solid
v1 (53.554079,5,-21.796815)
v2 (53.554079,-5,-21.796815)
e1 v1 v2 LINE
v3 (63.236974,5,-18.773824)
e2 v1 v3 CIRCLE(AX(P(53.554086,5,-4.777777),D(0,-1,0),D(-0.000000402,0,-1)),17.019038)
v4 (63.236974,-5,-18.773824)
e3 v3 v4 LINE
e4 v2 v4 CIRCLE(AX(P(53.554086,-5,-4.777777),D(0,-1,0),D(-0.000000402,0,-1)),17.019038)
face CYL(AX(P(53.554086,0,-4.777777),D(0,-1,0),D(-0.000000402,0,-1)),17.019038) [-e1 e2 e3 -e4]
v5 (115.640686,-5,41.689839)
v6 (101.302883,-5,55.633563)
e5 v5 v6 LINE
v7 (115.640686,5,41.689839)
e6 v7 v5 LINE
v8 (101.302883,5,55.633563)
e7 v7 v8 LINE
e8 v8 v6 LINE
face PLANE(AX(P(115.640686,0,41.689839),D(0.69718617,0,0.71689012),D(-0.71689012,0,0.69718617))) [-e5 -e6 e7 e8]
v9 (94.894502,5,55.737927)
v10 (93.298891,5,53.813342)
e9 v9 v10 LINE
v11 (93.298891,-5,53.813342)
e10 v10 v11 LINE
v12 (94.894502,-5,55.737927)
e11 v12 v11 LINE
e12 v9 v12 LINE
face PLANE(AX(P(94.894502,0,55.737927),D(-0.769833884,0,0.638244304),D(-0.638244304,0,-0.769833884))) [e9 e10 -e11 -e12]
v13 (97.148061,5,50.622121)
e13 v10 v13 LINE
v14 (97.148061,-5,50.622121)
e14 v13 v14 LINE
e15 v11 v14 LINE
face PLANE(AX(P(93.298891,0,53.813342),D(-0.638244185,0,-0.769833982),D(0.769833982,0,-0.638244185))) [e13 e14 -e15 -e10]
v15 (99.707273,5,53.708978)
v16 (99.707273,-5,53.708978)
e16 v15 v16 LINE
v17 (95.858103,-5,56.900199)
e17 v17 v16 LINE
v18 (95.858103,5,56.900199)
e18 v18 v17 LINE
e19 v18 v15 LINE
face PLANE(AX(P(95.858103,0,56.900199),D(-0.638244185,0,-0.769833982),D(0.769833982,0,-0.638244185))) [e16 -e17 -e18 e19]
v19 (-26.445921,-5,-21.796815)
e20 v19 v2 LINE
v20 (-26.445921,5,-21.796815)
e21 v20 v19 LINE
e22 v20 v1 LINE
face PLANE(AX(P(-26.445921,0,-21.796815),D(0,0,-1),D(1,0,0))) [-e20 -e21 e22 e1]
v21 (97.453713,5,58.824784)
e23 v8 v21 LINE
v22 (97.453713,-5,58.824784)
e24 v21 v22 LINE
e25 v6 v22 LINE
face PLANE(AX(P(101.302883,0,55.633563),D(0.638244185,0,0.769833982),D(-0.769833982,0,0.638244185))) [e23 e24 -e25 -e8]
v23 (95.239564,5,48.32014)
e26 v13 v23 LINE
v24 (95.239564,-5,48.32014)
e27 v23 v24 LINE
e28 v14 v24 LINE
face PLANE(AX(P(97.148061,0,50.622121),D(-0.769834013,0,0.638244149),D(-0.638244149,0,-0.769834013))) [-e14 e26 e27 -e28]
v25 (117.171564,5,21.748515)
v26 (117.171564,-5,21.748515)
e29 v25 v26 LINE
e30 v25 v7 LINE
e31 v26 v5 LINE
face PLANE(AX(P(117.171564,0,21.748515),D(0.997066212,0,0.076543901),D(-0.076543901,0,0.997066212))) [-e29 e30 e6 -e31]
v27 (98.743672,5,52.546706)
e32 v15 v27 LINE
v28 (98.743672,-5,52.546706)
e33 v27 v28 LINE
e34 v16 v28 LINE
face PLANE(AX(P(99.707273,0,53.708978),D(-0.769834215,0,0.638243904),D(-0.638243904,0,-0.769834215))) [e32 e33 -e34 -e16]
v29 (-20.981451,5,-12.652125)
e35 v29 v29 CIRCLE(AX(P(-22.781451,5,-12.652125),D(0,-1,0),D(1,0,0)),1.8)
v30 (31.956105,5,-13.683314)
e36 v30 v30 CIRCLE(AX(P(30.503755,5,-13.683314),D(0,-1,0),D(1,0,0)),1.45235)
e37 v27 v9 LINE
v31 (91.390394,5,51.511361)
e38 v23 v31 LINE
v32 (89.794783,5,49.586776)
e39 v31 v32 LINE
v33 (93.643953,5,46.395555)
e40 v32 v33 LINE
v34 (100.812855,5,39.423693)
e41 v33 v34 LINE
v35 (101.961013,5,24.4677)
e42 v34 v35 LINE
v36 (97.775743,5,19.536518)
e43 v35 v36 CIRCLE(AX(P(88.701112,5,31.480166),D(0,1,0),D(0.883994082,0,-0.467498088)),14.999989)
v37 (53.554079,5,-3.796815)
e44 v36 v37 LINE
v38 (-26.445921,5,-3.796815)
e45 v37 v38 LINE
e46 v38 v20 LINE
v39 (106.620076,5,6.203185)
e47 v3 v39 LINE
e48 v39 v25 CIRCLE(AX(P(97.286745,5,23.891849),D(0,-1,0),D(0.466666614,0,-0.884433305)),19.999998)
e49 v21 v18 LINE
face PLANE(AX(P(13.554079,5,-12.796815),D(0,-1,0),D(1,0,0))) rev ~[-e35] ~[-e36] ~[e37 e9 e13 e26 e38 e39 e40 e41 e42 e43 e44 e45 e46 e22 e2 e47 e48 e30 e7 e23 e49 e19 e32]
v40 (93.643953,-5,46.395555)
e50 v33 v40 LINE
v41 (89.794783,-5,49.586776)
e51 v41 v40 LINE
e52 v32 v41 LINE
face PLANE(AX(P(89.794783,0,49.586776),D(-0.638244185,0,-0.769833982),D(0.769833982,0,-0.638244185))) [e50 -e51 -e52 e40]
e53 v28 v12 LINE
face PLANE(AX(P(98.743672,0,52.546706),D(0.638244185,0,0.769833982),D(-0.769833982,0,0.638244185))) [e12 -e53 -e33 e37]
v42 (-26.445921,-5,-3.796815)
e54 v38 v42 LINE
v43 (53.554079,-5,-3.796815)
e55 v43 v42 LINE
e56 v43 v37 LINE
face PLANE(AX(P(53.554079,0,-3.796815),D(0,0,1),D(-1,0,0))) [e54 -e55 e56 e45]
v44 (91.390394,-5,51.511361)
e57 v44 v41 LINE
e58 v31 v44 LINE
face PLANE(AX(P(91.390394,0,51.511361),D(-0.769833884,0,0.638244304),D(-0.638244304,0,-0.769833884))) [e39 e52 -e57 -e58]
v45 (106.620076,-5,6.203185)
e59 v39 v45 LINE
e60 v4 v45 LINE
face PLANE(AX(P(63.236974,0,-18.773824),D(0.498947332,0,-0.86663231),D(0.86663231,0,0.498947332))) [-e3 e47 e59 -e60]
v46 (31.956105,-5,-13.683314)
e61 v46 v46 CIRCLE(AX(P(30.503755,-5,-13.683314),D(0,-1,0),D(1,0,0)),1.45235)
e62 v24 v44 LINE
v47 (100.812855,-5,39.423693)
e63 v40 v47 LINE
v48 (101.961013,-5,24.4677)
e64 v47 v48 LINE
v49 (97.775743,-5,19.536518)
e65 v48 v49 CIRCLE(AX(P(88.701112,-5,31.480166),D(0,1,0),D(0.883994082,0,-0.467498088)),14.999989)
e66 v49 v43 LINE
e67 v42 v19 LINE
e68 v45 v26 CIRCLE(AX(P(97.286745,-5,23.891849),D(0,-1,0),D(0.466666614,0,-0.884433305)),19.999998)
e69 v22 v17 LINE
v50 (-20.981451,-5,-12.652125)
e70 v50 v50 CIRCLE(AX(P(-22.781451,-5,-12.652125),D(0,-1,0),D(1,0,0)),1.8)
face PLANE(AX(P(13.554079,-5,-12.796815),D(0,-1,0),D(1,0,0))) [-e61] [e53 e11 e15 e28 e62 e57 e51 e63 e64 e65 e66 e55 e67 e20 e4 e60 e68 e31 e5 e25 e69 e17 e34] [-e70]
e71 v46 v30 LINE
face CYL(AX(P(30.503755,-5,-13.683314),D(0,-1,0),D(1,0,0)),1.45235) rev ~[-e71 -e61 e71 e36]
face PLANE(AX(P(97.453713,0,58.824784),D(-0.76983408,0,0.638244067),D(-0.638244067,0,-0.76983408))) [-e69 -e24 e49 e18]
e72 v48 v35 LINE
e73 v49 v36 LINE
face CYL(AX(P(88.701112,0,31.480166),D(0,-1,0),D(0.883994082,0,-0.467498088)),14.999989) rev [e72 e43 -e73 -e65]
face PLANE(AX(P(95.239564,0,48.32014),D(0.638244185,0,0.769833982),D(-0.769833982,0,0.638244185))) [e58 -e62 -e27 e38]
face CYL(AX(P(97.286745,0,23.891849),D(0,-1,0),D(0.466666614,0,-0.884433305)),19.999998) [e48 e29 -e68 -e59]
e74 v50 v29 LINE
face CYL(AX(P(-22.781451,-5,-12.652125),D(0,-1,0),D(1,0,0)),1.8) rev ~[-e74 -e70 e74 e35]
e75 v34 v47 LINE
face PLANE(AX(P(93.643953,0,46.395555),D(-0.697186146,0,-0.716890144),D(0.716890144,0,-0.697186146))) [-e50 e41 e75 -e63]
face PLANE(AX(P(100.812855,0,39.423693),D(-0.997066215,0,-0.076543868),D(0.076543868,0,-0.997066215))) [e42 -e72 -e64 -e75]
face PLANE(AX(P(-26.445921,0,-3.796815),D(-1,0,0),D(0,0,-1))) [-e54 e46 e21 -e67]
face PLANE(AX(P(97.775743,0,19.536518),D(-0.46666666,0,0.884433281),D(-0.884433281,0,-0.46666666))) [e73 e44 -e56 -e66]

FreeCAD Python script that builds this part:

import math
import FreeCAD as App
import Part
import Sketcher
from FreeCAD import Vector
Q = App.Units.Quantity

doc = App.newDocument("Part")
body = doc.addObject("PartDesign::Body", "Body")

# Sketch on XZ plane
sketch1 = body.newObject("Sketcher::SketchObject", "Sketch")
sketch1.AttachmentSupport = (doc.getObject("XZ_Plane"), [""])
sketch1.MapMode = "FlatFace"
sketch1.addGeometry(Part.LineSegment(Vector(53.554079, -3.796815, 0), Vector(-26.445921, -3.796815, 0)), False)
sketch1.addGeometry(Part.LineSegment(Vector(-26.445921, -3.796815, 0), Vector(-26.445921, -21.796815, 0)), False)
sketch1.addGeometry(Part.LineSegment(Vector(-26.445921, -21.796815, 0), Vector(53.554079, -21.796815, 0)), False)
sketch1.addGeometry(Part.ArcOfCircle(Part.Circle(Vector(53.554086, -4.777777, 0), Vector(0, 0, 1), 17.019038), math.radians(-90.000023), math.radians(-55.323344)), False)
sketch1.addGeometry(Part.LineSegment(Vector(63.236974, -18.773824, 0), Vector(106.620076, 6.203185, 0)), False)
sketch1.addGeometry(Part.ArcOfCircle(Part.Circle(Vector(97.286745, 23.891849, 0), Vector(0, 0, 1), 19.999998), math.radians(-62.181864), math.radians(-6.152016)), False)
sketch1.addGeometry(Part.LineSegment(Vector(117.171564, 21.748515, 0), Vector(115.640686, 41.689839, 0)), False)
sketch1.addGeometry(Part.LineSegment(Vector(115.640686, 41.689839, 0), Vector(101.302883, 55.633563, 0)), False)
sketch1.addGeometry(Part.LineSegment(Vector(101.302883, 55.633563, 0), Vector(97.453713, 58.824784, 0)), False)
sketch1.addGeometry(Part.LineSegment(Vector(97.453713, 58.824784, 0), Vector(95.858103, 56.900199, 0)), False)
sketch1.addGeometry(Part.LineSegment(Vector(95.858103, 56.900199, 0), Vector(99.707273, 53.708978, 0)), False)
sketch1.addGeometry(Part.LineSegment(Vector(99.707273, 53.708978, 0), Vector(98.743672, 52.546706, 0)), False)
sketch1.addGeometry(Part.LineSegment(Vector(98.743672, 52.546706, 0), Vector(94.894502, 55.737927, 0)), False)
sketch1.addGeometry(Part.LineSegment(Vector(94.894502, 55.737927, 0), Vector(93.298891, 53.813342, 0)), False)
sketch1.addGeometry(Part.LineSegment(Vector(93.298891, 53.813342, 0), Vector(97.148061, 50.622121, 0)), False)
sketch1.addGeometry(Part.LineSegment(Vector(97.148061, 50.622121, 0), Vector(95.239564, 48.32014, 0)), False)
sketch1.addGeometry(Part.LineSegment(Vector(95.239564, 48.32014, 0), Vector(91.390394, 51.511361, 0)), False)
sketch1.addGeometry(Part.LineSegment(Vector(91.390394, 51.511361, 0), Vector(89.794783, 49.586776, 0)), False)
sketch1.addGeometry(Part.LineSegment(Vector(89.794783, 49.586776, 0), Vector(93.643953, 46.395555, 0)), False)
sketch1.addGeometry(Part.LineSegment(Vector(93.643953, 46.395555, 0), Vector(100.812855, 39.423693, 0)), False)
sketch1.addGeometry(Part.LineSegment(Vector(100.812855, 39.423693, 0), Vector(101.961013, 24.4677, 0)), False)
sketch1.addGeometry(Part.ArcOfCircle(Part.Circle(Vector(88.701112, 31.480166, 0), Vector(0, 0, 1), 14.999989), math.radians(-52.772894), math.radians(-27.872014)), False)
sketch1.addGeometry(Part.LineSegment(Vector(97.775743, 19.536518, 0), Vector(53.554079, -3.796815, 0)), False)
sketch1.addConstraint(Sketcher.Constraint("Coincident", 0, 2, 1, 1))
sketch1.addConstraint(Sketcher.Constraint("Coincident", 1, 2, 2, 1))
sketch1.addConstraint(Sketcher.Constraint("Coincident", 2, 2, 3, 1))
sketch1.addConstraint(Sketcher.Constraint("Coincident", 3, 2, 4, 1))
sketch1.addConstraint(Sketcher.Constraint("Coincident", 4, 2, 5, 1))
sketch1.addConstraint(Sketcher.Constraint("Coincident", 5, 2, 6, 1))
sketch1.addConstraint(Sketcher.Constraint("Coincident", 6, 2, 7, 1))
sketch1.addConstraint(Sketcher.Constraint("Coincident", 7, 2, 8, 1))
sketch1.addConstraint(Sketcher.Constraint("Coincident", 8, 2, 9, 1))
sketch1.addConstraint(Sketcher.Constraint("Coincident", 9, 2, 10, 1))
sketch1.addConstraint(Sketcher.Constraint("Coincident", 10, 2, 11, 1))
sketch1.addConstraint(Sketcher.Constraint("Coincident", 11, 2, 12, 1))
sketch1.addConstraint(Sketcher.Constraint("Coincident", 12, 2, 13, 1))
sketch1.addConstraint(Sketcher.Constraint("Coincident", 13, 2, 14, 1))
sketch1.addConstraint(Sketcher.Constraint("Coincident", 14, 2, 15, 1))
sketch1.addConstraint(Sketcher.Constraint("Coincident", 15, 2, 16, 1))
sketch1.addConstraint(Sketcher.Constraint("Coincident", 16, 2, 17, 1))
sketch1.addConstraint(Sketcher.Constraint("Coincident", 17, 2, 18, 1))
sketch1.addConstraint(Sketcher.Constraint("Coincident", 18, 2, 19, 1))
sketch1.addConstraint(Sketcher.Constraint("Coincident", 19, 2, 20, 1))
sketch1.addConstraint(Sketcher.Constraint("Coincident", 20, 2, 21, 2))
sketch1.addConstraint(Sketcher.Constraint("Coincident", 21, 1, 22, 1))
sketch1.addConstraint(Sketcher.Constraint("Coincident", 22, 2, 0, 1))
sketch1.addConstraint(Sketcher.Constraint("Horizontal", 0))
sketch1.addConstraint(Sketcher.Constraint("Vertical", 1))
sketch1.addConstraint(Sketcher.Constraint("Horizontal", 2))
sketch1.addConstraint(Sketcher.Constraint("Radius", 5, Q("19.999998 mm")))
sketch1.addConstraint(Sketcher.Constraint("DistanceX", 0, 2, 0, 1, Q("80 mm")))
sketch1.addConstraint(Sketcher.Constraint("DistanceX", 2, 1, 2, 2, Q("80 mm")))
sketch1.addConstraint(Sketcher.Constraint("DistanceY", 1, 2, 1, 1, Q("18 mm")))
sketch1.addConstraint(Sketcher.Constraint("Distance", 6, Q("20 mm")))
sketch1.addConstraint(Sketcher.Constraint("Distance", 7, Q("20.000001 mm")))
sketch1.addConstraint(Sketcher.Constraint("Distance", 8, Q("5 mm")))
sketch1.addConstraint(Sketcher.Constraint("Distance", 10, Q("5 mm")))
sketch1.addConstraint(Sketcher.Constraint("Distance", 12, Q("5 mm")))
sketch1.addConstraint(Sketcher.Constraint("Distance", 14, Q("5 mm")))
sketch1.addConstraint(Sketcher.Constraint("Distance", 16, Q("5 mm")))
sketch1.addConstraint(Sketcher.Constraint("Distance", 18, Q("5 mm")))
sketch1.addConstraint(Sketcher.Constraint("Distance", 19, Q("10.000001 mm")))
sketch1.addConstraint(Sketcher.Constraint("Distance", 20, Q("15 mm")))
sketch1.addConstraint(Sketcher.Constraint("Distance", 22, Q("50 mm")))
sketch1.addConstraint(Sketcher.Constraint("DistanceY", 2, 2, 4, 2, Q("28 mm")))
sketch1.addConstraint(Sketcher.Constraint("Distance", 9, Q("2.5 mm")))
sketch1.addConstraint(Sketcher.Constraint("Distance", 13, Q("2.5 mm")))
sketch1.addConstraint(Sketcher.Constraint("Distance", 17, Q("2.5 mm")))
sketch1.addConstraint(Sketcher.Constraint("Radius", 3, Q("17.019038 mm")))
sketch1.addConstraint(Sketcher.Constraint("Radius", 21, Q("14.999989 mm")))
sketch1.addConstraint(Sketcher.Constraint("DistanceX", 5, 3, 21, 1, Q("0.488998 mm")))
sketch1.addConstraint(Sketcher.Constraint("DistanceY", -1, 1, 9, 2, Q("56.900199 mm")))
sketch1.addConstraint(Sketcher.Constraint("DistanceY", -1, 1, 20, 2, Q("24.4677 mm")))
sketch1.addConstraint(Sketcher.Constraint("DistanceX", 3, 3, 6, 2, Q("62.0866 mm")))
sketch1.addConstraint(Sketcher.Constraint("DistanceX", 21, 3, 8, 2, Q("8.752601 mm")))
sketch1.addConstraint(Sketcher.Constraint("DistanceX", 11, 2, 10, 2, Q("0.963601 mm")))
sketch1.addConstraint(Sketcher.Constraint("DistanceX", 12, 2, 9, 2, Q("0.963601 mm")))
sketch1.addConstraint(Sketcher.Constraint("DistanceY", 15, 2, 13, 2, Q("5.493202 mm")))
sketch1.addConstraint(Sketcher.Constraint("DistanceX", 21, 3, 20, 2, Q("13.259901 mm")))
sketch1.addConstraint(Sketcher.Constraint("Distance", 4, Q("50.05941 mm")))
sketch1.addConstraint(Sketcher.Constraint("Distance", 11, Q("1.509769 mm")))
sketch1.addConstraint(Sketcher.Constraint("Distance", 15, Q("2.99023 mm")))
sketch1.addConstraint(Sketcher.Constraint("DistanceY", -1, 1, 5, 3, Q("23.891849 mm")))
sketch1.addConstraint(Sketcher.Constraint("DistanceX", -1, 1, 21, 3, Q("88.701112 mm")))
sketch1.addConstraint(Sketcher.Constraint("DistanceX", 0, 2, -1, 1, Q("26.445921 mm")))
sketch1.addConstraint(Sketcher.Constraint("DistanceY", -1, 1, 6, 2, Q("41.689839 mm")))
sketch1.addConstraint(Sketcher.Constraint("DistanceY", -1, 1, 10, 2, Q("53.708978 mm")))
sketch1.addConstraint(Sketcher.Constraint("DistanceX", -1, 1, 13, 2, Q("93.298891 mm")))
sketch1.addConstraint(Sketcher.Constraint("DistanceX", -1, 1, 14, 2, Q("97.148061 mm")))
sketch1.addConstraint(Sketcher.Constraint("DistanceY", -1, 1, 14, 2, Q("50.622121 mm")))
sketch1.addConstraint(Sketcher.Constraint("DistanceY", -1, 1, 16, 2, Q("51.511361 mm")))
sketch1.addConstraint(Sketcher.Constraint("DistanceY", -1, 1, 21, 1, Q("19.536518 mm")))
sketch1.addConstraint(Sketcher.Constraint("DistanceX", 3, 3, 5, 3, Q("43.732659 mm")))
sketch1.addConstraint(Sketcher.Constraint("DistanceX", 17, 2, 16, 2, Q("1.595611 mm")))
sketch1.addConstraint(Sketcher.Constraint("DistanceX", 18, 2, 15, 2, Q("1.595611 mm")))
pad1 = body.newObject("PartDesign::Pad", "Pad")
pad1.Profile = sketch1
pad1.Length = 10
pad1.Midplane = True

# Sketch on XZ plane
sketch2 = body.newObject("Sketcher::SketchObject", "Sketch001")
sketch2.AttachmentSupport = (doc.getObject("XZ_Plane"), [""])
sketch2.MapMode = "FlatFace"
sketch2.AttachmentOffset = App.Placement(Vector(0, 0, 5), App.Rotation())
sketch2.addGeometry(Part.Circle(Vector(30.5, -13.7, 0), Vector(0, 0, 1), 1.5), False)
sketch2.addConstraint(Sketcher.Constraint("Diameter", 0, Q("2.9047 mm")))
sketch2.addConstraint(Sketcher.Constraint("DistanceX", -1, 1, 0, 3, Q("30.503755 mm")))
sketch2.addConstraint(Sketcher.Constraint("DistanceY", 0, 3, -1, 1, Q("13.683314 mm")))
pocket1 = body.newObject("PartDesign::Pocket", "Pocket")
pocket1.Profile = sketch2
pocket1.Length = 26

# Sketch on XZ plane
sketch3 = body.newObject("Sketcher::SketchObject", "Sketch002")
sketch3.AttachmentSupport = (doc.getObject("XZ_Plane"), [""])
sketch3.MapMode = "FlatFace"
sketch3.AttachmentOffset = App.Placement(Vector(0, 0, 5), App.Rotation())
sketch3.addGeometry(Part.Circle(Vector(-22.8, -12.7, 0), Vector(0, 0, 1), 1.8), False)
sketch3.addConstraint(Sketcher.Constraint("Diameter", 0, Q("3.6 mm")))
sketch3.addConstraint(Sketcher.Constraint("DistanceX", 0, 3, -1, 1, Q("22.781451 mm")))
sketch3.addConstraint(Sketcher.Constraint("DistanceY", 0, 3, -1, 1, Q("12.652125 mm")))
pocket2 = body.newObject("PartDesign::Pocket", "Pocket001")
pocket2.Profile = sketch3
pocket2.Length = 25

doc.recompute()
